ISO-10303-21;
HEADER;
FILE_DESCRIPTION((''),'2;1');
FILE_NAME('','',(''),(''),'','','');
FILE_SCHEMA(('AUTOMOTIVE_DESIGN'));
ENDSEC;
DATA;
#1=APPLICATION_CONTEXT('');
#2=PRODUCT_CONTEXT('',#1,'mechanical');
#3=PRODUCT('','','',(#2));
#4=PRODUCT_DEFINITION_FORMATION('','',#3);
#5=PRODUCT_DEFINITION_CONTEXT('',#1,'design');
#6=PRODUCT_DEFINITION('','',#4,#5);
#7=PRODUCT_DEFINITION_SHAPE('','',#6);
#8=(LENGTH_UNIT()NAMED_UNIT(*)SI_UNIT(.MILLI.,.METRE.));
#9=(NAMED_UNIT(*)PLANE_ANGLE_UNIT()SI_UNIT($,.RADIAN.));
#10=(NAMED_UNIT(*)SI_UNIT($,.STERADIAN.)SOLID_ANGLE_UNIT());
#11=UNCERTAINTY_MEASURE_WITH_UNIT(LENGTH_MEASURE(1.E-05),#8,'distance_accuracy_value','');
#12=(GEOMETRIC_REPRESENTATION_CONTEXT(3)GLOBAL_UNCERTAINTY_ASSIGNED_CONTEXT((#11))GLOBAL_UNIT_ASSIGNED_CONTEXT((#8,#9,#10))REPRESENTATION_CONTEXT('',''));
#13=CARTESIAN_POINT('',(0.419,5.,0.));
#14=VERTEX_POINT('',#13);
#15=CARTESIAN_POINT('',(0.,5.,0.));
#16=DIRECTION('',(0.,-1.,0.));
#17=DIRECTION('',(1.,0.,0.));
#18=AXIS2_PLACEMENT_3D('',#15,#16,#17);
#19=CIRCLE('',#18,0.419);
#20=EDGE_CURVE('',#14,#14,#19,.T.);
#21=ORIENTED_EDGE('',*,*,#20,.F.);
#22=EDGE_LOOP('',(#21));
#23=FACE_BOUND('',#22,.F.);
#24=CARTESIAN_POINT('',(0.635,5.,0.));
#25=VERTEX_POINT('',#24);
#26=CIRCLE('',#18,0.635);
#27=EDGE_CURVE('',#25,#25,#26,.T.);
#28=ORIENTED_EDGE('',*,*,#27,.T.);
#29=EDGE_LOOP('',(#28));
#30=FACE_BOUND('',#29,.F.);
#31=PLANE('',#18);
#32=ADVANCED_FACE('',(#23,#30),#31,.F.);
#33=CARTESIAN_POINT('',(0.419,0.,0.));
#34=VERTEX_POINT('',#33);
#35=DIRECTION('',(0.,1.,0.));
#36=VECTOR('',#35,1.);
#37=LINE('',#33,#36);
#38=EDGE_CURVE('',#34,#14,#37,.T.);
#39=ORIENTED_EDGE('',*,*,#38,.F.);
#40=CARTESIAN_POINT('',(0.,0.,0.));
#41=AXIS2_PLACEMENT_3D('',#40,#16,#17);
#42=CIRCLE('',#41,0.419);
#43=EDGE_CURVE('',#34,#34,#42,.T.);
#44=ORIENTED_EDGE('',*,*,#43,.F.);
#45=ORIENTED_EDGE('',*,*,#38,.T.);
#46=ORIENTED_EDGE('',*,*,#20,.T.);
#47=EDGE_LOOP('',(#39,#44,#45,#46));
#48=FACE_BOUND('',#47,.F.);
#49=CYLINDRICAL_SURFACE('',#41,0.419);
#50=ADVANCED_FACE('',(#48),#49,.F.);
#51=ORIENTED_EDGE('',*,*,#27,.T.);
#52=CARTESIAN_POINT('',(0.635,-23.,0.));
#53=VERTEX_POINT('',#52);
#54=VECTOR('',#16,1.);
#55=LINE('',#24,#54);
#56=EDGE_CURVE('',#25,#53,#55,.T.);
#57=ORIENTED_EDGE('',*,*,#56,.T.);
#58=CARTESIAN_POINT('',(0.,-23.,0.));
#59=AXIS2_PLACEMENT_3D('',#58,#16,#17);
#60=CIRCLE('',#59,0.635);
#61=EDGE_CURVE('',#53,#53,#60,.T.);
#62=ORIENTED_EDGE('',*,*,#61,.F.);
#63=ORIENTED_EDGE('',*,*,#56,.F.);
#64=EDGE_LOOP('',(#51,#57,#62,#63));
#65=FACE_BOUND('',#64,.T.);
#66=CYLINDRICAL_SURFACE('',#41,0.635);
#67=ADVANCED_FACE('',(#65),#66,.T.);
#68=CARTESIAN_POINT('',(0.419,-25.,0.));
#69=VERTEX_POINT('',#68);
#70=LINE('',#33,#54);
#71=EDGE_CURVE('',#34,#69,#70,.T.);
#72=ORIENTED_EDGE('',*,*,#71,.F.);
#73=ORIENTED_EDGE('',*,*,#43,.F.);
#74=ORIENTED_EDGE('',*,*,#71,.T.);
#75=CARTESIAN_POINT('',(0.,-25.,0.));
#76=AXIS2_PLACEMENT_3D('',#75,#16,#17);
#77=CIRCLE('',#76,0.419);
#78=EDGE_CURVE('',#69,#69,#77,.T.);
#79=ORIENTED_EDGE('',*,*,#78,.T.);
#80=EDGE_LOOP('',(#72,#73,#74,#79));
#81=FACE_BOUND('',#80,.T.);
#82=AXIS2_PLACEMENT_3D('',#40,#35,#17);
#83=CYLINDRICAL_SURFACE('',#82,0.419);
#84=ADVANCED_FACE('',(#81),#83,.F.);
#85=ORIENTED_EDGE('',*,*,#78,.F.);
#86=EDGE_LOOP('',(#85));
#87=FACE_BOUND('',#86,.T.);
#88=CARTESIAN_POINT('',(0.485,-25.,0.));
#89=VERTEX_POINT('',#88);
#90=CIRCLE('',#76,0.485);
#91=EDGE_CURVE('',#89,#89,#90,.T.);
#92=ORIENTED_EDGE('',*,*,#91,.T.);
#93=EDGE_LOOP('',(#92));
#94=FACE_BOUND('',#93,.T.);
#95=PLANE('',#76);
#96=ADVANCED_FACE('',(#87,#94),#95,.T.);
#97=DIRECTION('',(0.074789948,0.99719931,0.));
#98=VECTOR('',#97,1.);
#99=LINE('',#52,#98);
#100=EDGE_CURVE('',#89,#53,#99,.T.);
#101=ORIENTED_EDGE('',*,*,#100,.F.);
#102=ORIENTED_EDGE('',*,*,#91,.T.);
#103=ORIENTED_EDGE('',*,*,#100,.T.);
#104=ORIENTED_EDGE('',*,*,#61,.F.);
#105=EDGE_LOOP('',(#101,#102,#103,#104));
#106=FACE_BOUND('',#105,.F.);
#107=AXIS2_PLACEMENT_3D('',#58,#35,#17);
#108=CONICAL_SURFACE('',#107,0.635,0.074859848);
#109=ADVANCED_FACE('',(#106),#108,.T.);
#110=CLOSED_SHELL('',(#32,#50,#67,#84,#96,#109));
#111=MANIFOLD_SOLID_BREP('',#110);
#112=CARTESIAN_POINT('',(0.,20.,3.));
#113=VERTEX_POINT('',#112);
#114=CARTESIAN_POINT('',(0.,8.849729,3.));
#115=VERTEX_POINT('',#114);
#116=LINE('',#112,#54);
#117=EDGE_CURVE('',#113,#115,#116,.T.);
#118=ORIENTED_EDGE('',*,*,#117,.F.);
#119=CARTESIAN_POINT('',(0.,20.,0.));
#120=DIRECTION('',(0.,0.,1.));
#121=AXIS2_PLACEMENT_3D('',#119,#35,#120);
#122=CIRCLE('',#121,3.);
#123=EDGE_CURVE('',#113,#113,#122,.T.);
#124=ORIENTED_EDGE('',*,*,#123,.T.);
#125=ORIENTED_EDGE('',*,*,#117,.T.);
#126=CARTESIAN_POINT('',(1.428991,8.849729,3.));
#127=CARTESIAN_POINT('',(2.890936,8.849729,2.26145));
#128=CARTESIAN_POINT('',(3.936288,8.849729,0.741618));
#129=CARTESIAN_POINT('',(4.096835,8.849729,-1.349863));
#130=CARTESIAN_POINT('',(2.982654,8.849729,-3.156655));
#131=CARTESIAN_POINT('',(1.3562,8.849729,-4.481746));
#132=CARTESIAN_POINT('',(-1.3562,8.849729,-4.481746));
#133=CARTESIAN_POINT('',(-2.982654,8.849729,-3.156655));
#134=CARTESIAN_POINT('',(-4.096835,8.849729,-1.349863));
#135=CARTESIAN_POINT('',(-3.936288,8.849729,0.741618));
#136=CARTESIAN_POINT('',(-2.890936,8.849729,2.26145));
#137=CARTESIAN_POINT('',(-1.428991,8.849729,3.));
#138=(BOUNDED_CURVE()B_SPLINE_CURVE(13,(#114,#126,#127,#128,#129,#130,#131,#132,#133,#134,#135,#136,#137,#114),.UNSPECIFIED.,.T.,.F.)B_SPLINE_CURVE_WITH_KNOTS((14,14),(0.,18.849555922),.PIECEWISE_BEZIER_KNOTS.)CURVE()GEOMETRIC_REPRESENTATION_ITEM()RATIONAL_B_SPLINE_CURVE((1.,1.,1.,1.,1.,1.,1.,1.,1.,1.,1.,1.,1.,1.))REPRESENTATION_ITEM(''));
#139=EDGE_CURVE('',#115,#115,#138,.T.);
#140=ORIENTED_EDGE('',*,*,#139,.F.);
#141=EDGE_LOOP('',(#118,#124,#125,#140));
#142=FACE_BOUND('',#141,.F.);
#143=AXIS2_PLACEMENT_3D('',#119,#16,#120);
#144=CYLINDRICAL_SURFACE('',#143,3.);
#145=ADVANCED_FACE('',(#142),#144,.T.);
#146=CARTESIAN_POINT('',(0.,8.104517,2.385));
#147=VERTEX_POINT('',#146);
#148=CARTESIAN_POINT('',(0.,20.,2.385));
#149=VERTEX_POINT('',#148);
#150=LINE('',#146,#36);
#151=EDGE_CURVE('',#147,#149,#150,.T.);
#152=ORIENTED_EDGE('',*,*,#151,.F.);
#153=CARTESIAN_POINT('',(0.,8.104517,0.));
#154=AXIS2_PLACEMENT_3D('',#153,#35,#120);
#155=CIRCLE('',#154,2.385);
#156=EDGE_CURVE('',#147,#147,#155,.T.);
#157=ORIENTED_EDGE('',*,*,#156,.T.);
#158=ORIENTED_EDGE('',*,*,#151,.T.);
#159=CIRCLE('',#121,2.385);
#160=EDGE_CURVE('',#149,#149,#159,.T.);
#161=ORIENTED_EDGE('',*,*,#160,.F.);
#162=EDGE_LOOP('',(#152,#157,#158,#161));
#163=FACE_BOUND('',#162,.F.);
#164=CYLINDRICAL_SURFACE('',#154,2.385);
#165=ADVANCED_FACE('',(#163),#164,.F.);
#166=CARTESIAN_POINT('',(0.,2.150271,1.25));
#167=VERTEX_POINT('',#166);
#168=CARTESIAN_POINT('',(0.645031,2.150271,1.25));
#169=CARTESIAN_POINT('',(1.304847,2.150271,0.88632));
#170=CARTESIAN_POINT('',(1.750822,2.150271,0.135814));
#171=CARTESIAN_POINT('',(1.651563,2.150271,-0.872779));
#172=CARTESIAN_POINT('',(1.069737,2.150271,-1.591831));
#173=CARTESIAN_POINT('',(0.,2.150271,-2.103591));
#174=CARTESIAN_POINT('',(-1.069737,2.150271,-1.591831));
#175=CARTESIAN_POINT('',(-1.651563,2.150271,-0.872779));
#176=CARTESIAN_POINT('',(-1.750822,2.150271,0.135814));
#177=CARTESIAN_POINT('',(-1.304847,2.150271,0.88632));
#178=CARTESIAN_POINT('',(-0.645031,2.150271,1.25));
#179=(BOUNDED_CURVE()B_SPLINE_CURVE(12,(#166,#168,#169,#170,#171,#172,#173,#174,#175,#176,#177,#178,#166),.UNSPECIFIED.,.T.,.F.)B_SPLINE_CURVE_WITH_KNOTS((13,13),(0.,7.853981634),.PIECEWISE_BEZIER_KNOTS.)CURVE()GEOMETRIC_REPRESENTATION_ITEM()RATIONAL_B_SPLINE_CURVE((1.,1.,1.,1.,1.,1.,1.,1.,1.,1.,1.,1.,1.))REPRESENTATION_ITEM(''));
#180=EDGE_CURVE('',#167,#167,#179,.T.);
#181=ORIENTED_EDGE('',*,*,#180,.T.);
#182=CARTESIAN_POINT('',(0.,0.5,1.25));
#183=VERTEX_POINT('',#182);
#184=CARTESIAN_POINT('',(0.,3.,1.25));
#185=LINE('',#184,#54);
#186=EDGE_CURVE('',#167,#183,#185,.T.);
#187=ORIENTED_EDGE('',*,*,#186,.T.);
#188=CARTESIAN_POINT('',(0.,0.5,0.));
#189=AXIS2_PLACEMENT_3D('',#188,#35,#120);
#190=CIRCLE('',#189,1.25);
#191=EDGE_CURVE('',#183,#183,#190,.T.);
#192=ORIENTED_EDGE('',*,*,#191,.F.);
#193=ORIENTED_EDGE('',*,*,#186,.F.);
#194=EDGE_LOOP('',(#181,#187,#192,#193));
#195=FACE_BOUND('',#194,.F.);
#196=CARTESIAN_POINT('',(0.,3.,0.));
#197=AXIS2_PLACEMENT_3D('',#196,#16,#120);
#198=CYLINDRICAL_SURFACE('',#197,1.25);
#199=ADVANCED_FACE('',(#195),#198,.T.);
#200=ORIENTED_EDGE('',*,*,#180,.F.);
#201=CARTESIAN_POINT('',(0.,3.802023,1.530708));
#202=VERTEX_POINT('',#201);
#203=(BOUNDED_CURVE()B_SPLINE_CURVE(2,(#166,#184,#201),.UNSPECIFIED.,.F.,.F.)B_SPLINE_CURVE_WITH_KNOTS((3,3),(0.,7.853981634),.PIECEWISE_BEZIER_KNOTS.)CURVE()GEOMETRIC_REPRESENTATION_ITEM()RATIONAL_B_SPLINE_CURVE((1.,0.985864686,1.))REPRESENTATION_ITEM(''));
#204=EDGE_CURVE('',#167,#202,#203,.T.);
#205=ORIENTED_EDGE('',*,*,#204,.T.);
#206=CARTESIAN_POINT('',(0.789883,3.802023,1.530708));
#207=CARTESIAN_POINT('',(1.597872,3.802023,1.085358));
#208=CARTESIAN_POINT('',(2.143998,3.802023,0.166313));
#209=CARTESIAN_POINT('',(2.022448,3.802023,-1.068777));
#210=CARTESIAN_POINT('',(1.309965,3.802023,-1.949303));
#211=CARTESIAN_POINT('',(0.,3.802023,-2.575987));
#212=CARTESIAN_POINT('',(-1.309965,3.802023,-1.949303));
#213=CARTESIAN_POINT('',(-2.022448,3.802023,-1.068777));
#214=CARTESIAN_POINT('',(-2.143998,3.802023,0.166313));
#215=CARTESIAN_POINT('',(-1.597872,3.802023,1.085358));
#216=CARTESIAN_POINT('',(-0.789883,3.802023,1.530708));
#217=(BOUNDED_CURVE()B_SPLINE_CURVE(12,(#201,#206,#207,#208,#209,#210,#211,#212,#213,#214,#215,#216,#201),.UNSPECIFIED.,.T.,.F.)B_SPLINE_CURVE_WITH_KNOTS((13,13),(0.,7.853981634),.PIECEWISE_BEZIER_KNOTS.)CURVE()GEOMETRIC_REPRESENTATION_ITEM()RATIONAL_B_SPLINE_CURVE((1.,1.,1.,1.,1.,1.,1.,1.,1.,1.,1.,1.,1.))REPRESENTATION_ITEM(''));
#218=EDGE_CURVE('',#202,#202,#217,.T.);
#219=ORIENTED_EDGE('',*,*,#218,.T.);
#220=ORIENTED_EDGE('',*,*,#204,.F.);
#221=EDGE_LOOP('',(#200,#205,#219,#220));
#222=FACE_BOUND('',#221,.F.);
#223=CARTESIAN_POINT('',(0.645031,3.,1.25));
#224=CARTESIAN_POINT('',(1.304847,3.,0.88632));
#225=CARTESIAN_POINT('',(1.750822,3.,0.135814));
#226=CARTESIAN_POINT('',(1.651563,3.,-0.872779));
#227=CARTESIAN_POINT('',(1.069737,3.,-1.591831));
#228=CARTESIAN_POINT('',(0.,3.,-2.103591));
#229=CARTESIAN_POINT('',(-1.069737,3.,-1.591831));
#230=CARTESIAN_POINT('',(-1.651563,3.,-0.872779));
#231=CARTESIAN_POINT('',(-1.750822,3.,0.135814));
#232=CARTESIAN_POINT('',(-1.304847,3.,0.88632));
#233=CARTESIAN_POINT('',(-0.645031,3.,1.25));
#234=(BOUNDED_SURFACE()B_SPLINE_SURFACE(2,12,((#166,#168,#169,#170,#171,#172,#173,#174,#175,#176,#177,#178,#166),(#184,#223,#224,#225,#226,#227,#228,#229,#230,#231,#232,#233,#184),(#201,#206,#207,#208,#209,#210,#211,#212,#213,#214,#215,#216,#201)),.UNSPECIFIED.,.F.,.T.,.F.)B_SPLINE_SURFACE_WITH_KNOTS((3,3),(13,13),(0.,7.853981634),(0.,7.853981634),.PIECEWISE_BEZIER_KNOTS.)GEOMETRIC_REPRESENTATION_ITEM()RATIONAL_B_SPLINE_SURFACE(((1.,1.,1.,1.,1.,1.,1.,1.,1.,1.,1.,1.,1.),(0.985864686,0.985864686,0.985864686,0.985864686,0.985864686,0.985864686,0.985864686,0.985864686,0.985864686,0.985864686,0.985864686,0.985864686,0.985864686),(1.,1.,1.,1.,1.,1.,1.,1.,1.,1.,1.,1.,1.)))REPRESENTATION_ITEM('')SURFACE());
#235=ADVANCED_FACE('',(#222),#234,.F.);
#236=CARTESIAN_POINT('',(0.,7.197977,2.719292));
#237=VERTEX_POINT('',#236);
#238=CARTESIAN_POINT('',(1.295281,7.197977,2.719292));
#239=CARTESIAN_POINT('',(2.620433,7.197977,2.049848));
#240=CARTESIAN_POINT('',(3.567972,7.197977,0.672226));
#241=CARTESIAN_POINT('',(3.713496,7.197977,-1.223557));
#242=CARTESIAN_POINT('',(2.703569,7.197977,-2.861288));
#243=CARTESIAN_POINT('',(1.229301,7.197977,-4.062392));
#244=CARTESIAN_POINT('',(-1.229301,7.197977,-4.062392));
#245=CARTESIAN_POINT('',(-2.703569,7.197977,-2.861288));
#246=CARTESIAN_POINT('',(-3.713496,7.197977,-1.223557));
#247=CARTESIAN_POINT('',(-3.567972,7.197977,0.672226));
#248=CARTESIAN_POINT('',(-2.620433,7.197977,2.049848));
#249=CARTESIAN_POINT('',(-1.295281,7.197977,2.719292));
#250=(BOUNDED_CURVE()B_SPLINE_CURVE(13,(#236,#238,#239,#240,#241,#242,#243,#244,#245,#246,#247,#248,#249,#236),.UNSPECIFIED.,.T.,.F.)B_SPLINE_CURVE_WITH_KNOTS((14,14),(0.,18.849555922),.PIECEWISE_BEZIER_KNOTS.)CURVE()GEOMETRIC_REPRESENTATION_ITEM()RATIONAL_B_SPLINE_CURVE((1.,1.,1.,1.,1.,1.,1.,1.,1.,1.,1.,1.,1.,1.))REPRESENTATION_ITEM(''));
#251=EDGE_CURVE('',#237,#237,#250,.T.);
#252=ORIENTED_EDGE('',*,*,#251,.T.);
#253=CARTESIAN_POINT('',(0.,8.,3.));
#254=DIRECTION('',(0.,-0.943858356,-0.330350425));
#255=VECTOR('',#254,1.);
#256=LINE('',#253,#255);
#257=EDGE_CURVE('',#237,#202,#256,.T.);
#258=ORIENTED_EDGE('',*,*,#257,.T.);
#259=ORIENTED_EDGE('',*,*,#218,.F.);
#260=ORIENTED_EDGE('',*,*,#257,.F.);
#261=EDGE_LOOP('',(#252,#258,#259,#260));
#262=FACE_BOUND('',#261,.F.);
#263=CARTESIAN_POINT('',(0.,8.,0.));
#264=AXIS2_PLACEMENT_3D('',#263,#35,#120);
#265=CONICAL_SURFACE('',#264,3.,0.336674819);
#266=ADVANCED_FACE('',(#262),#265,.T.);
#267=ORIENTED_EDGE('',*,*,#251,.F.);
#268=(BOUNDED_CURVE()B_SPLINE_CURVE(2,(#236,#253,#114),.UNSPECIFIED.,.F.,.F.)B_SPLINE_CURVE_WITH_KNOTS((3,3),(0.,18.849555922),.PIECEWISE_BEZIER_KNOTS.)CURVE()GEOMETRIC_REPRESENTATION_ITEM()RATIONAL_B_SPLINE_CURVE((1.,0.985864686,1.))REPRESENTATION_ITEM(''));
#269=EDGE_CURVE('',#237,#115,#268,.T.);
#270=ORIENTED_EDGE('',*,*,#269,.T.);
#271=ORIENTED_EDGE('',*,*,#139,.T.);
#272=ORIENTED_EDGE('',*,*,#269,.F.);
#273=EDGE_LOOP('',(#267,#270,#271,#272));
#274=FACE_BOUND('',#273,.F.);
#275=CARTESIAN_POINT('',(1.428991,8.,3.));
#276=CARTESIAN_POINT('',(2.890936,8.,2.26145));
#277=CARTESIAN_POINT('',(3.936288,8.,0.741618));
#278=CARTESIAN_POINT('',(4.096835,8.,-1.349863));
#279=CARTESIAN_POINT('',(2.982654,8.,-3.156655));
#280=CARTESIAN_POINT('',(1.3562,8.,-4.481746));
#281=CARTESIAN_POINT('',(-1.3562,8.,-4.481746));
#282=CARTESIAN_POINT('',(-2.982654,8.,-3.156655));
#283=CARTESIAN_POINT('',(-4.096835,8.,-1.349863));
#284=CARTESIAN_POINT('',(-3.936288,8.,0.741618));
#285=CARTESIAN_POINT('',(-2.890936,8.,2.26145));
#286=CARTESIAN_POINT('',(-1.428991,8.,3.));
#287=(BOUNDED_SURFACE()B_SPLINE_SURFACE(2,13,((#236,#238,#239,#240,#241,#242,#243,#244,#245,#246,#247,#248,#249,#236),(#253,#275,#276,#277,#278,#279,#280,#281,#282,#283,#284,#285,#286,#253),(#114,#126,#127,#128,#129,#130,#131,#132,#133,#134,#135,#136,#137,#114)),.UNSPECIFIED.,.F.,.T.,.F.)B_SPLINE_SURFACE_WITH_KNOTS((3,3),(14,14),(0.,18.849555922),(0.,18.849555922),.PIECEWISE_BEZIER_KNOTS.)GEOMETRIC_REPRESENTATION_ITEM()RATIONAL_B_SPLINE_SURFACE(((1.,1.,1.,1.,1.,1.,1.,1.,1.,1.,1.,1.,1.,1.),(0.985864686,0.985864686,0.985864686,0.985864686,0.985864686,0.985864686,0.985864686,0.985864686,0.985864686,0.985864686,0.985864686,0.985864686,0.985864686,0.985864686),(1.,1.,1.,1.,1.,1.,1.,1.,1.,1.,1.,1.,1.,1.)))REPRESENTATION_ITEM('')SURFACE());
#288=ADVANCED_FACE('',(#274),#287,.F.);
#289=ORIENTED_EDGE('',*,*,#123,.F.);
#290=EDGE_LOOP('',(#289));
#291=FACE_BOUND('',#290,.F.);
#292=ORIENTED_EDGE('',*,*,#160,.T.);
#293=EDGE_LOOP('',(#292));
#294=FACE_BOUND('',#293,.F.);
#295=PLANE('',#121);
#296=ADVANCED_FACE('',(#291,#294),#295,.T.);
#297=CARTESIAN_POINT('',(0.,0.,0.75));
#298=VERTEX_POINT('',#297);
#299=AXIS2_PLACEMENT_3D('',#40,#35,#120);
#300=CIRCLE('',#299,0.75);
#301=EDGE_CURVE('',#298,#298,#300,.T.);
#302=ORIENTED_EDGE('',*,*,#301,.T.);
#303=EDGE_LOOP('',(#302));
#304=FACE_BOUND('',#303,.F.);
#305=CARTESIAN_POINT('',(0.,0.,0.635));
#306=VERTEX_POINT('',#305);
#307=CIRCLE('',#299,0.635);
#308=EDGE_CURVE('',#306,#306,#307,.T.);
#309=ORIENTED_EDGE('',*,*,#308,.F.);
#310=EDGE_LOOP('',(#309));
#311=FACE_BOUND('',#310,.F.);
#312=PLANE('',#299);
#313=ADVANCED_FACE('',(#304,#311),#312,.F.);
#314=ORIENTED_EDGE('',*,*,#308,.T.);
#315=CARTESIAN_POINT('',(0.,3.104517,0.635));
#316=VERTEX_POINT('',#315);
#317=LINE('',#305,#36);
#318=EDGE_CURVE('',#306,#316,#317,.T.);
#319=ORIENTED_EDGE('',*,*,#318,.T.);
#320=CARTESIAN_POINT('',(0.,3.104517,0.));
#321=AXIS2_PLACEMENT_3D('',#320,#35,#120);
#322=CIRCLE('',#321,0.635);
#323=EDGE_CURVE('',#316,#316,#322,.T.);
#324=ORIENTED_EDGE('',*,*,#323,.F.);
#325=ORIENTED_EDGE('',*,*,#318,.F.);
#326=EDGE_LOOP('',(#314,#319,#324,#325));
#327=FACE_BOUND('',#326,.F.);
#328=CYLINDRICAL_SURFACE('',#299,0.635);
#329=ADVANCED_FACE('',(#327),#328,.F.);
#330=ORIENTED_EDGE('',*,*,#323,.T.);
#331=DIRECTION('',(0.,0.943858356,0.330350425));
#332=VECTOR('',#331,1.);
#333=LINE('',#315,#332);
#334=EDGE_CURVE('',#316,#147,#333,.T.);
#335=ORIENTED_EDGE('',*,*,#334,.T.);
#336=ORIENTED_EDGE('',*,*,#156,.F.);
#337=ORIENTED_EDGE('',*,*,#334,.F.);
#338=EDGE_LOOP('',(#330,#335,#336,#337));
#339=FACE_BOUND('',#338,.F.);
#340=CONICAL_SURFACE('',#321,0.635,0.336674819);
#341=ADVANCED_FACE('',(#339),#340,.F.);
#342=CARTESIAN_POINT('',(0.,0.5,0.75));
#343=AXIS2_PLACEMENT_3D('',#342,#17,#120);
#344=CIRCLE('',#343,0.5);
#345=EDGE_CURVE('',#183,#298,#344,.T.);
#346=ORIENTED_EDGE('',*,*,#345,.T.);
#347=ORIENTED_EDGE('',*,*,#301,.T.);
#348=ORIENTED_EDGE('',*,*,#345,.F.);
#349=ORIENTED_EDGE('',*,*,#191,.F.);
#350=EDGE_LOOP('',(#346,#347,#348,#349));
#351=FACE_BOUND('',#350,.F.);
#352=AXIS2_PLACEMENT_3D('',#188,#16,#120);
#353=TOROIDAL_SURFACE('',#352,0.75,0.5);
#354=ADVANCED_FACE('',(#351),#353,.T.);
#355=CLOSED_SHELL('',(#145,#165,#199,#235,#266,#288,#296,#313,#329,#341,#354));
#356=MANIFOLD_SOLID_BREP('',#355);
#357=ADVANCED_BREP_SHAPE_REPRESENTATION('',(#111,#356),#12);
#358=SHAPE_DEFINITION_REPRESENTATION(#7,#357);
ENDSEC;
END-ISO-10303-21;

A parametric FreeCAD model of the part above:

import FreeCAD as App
import Part
import Sketcher
from FreeCAD import Vector


def edges_at(feature, points):
    """Names of the edges that pass closest to the given points."""
    edges = feature.Shape.Edges
    near = lambda p: min(range(len(edges)), key=lambda i: edges[i].distToShape(Part.Vertex(*p))[0])
    return sorted({f"Edge{near(p) + 1}" for p in points})


def add_polygon(sketch, points):
    """Adds a closed chain of lines whose ends are joined by coincident constraints."""
    first, n = sketch.GeometryCount, len(points)
    for a, b in zip(points, points[1:] + points[:1]):
        sketch.addGeometry(Part.LineSegment(App.Vector(*a, 0), App.Vector(*b, 0)), False)
    for i in range(n):
        sketch.addConstraint(Sketcher.Constraint("Coincident", first + i, 2, first + (i + 1) % n, 1))

doc = App.newDocument("Part")
body = doc.addObject("PartDesign::Body", "Body")

# Sketch on XZ plane
sketch1 = body.newObject("Sketcher::SketchObject", "Sketch")
sketch1.AttachmentSupport = (doc.getObject("XZ_Plane"), [""])
sketch1.MapMode = "FlatFace"
sketch1.addGeometry([
    Part.Circle(Vector(0, 0, 0), Vector(0, 0, 1), 0.64),
    Part.Circle(Vector(0, 0, 0), Vector(0, 0, 1), 0.42),
], False)
sketch1.addConstraint([
    Sketcher.Constraint("Coincident", 0, 3, -1, 1),
    Sketcher.Constraint("Coincident", 1, 3, -1, 1),
    Sketcher.Constraint("Diameter", 0, 1.27),
    Sketcher.Constraint("Diameter", 1, 0.838),
])
pad1 = body.newObject("PartDesign::Pad", "Pad")
pad1.Profile = sketch1
pad1.Type = "TwoLengths"
pad1.Length = 25
pad1.Length2 = 5
doc.recompute()

chamfer = body.newObject("PartDesign::Chamfer", "Chamfer")
chamfer.Base = (pad1, edges_at(pad1, [(-0.635, -25, 0)]))
chamfer.ChamferType = "Two distances"
chamfer.Size = 0.15
chamfer.Size2 = 2
chamfer.FlipDirection = True
body2 = doc.addObject("PartDesign::Body", "Body001")

# Sketch on YZ plane
sketch2 = body2.newObject("Sketcher::SketchObject", "Sketch001")
sketch2.AttachmentSupport = (doc.getObject("YZ_Plane001"), [""])
sketch2.MapMode = "FlatFace"
add_polygon(sketch2, [(3, 1.2), (0, 1.2), (0, 0.6), (3.1, 0.6), (8.1, 2.4), (20, 2.4), (20, 3), (8, 3)])  # lines 0-7
sketch2.addConstraint([
    Sketcher.Constraint("Horizontal", 0),
    Sketcher.Constraint("Vertical", 1),
    Sketcher.Constraint("Horizontal", 2),
    Sketcher.Constraint("Horizontal", 4),
    Sketcher.Constraint("Vertical", 5),
    Sketcher.Constraint("Horizontal", 6),
    Sketcher.Constraint("PointOnObject", 0, 2, -2),
    Sketcher.Constraint("Parallel", 3, 7),
    Sketcher.Constraint("Equal", 1, 5),
    Sketcher.Constraint("DistanceX", 0, 2, 0, 1, 3.0),
    Sketcher.Constraint("DistanceX", 6, 2, 6, 1, 12.0),
    Sketcher.Constraint("DistanceX", -1, 1, 4, 2, 20.0),
    Sketcher.Constraint("DistanceY", -1, 1, 5, 2, 3.0),
    Sketcher.Constraint("DistanceY", 1, 2, 1, 1, 0.615),
    Sketcher.Constraint("DistanceY", -1, 1, 0, 2, 1.25),
    Sketcher.Constraint("DistanceX", 2, 1, 2, 2, 3.104517),
])
revolution = body2.newObject("PartDesign::Revolution", "Revolution")
revolution.Profile = sketch2
revolution.ReferenceAxis = (sketch2, ["H_Axis"])
revolution.Angle = 360
doc.recompute()

fillet = body2.newObject("PartDesign::Fillet", "Fillet")
fillet.Base = (revolution, edges_at(revolution, [(0, 0, -1.25)]))
fillet.Radius = 0.5
doc.recompute()

fillet2 = body2.newObject("PartDesign::Fillet", "Fillet001")
fillet2.Base = (fillet, edges_at(fillet, [(0, 8, -3), (0, 3, -1.25)]))
fillet2.Radius = 5

doc.recompute()
